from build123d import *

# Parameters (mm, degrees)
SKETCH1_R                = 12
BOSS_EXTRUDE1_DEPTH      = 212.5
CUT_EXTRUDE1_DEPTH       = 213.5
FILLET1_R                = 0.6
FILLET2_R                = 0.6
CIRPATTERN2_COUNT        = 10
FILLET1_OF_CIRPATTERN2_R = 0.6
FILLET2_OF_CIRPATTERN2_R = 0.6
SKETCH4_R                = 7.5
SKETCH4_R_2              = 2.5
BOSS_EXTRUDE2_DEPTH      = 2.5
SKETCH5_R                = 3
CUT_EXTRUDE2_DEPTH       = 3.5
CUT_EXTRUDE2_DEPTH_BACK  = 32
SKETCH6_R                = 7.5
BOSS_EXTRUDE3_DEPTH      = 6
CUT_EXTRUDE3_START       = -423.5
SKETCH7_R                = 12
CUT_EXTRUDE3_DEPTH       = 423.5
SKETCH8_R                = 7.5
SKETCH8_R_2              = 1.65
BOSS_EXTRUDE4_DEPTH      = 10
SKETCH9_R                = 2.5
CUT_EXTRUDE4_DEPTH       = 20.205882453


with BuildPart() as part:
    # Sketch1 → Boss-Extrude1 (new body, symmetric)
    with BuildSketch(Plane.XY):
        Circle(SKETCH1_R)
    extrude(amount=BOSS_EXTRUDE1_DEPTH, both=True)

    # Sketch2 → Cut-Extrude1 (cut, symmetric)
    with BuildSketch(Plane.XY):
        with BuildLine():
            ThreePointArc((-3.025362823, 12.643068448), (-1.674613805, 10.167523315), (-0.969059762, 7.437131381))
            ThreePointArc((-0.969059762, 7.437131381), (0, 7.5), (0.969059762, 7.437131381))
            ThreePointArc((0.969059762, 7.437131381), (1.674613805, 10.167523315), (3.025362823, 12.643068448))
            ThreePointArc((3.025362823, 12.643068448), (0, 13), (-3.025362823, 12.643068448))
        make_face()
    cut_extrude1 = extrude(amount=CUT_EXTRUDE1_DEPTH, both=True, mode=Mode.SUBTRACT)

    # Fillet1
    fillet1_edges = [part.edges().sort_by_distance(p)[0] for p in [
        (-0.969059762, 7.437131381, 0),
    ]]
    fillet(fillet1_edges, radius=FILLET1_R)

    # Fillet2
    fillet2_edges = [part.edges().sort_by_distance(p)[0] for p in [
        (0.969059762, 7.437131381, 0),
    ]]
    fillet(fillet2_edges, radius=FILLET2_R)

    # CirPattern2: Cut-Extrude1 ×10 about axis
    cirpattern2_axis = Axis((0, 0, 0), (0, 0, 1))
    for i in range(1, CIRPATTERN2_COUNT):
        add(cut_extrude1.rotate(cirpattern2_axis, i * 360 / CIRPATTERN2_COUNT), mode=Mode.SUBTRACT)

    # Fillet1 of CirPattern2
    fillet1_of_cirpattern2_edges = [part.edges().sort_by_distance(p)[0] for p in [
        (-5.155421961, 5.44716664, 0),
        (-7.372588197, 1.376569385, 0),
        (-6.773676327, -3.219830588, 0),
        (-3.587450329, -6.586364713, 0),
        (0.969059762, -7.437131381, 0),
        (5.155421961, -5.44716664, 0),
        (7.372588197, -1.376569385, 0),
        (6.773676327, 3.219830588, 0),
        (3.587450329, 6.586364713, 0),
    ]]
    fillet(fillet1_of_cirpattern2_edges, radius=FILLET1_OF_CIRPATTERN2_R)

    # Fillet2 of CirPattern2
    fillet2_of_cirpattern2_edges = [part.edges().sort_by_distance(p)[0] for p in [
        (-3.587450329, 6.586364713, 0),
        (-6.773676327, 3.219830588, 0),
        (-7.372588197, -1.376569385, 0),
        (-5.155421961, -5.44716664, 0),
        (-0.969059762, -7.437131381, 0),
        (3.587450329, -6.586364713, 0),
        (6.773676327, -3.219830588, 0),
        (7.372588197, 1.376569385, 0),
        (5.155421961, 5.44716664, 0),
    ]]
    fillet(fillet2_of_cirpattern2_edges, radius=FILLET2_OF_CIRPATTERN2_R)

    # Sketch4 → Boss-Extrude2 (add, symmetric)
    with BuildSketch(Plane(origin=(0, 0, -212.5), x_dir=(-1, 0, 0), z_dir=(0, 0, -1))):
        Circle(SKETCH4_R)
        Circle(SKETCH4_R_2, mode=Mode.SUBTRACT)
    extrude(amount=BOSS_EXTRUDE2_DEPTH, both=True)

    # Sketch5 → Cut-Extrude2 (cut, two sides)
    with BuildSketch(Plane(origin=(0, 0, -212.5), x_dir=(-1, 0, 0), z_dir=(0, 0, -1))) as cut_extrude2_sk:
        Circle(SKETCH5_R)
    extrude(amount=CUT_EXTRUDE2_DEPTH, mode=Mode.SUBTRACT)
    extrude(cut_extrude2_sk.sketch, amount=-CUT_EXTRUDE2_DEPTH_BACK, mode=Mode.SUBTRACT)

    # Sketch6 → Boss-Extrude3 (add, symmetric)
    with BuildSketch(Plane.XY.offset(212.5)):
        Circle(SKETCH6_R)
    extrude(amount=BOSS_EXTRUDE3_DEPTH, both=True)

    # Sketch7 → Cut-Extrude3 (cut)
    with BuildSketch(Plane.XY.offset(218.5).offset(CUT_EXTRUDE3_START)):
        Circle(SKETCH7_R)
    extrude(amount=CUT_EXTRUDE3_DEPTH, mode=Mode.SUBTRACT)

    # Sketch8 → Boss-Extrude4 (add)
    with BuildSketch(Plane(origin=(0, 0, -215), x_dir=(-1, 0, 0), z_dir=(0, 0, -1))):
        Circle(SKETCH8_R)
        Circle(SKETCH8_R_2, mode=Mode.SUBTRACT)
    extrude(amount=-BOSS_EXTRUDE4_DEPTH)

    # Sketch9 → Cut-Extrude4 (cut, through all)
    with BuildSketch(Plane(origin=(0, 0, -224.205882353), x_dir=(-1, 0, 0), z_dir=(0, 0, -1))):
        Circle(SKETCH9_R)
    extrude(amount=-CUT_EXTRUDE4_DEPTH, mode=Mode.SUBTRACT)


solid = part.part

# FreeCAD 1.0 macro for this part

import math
import FreeCAD as App
import Part
import Sketcher
from FreeCAD import Vector
Q = App.Units.Quantity


def edges_at(feature, points):
    """Names of the edges that pass closest to the given points."""
    edges = feature.Shape.Edges
    near = lambda p: min(range(len(edges)), key=lambda i: edges[i].distToShape(Part.Vertex(*p))[0])
    return sorted({f"Edge{near(p) + 1}" for p in points})

doc = App.newDocument("Part")
body = doc.addObject("PartDesign::Body", "Body")

# Sketch on XY plane
sketch1 = body.newObject("Sketcher::SketchObject", "Sketch")
sketch1.AttachmentSupport = (doc.getObject("XY_Plane"), [""])
sketch1.MapMode = "FlatFace"
sketch1.addGeometry(Part.Circle(Vector(0, 0, 0), Vector(0, 0, 1), 12), False)
sketch1.addConstraint([
    Sketcher.Constraint("Coincident", 0, 3, -1, 1),
    Sketcher.Constraint("Diameter", 0, Q("24 mm")),
])
pad1 = body.newObject("PartDesign::Pad", "Pad")
pad1.Profile = sketch1
pad1.Length = 425
pad1.Midplane = True

# Sketch on XY plane
sketch2 = body.newObject("Sketcher::SketchObject", "Sketch001")
sketch2.AttachmentSupport = (doc.getObject("XY_Plane"), [""])
sketch2.MapMode = "FlatFace"
sketch2.addGeometry([
    Part.ArcOfCircle(Part.Circle(Vector(-12.337304, 5.955847, 0), Vector(0, 0, 1), 11.464344), math.radians(7.423826), math.radians(35.683412)),
    Part.ArcOfCircle(Part.Circle(Vector(0, 0, 0), Vector(0, 0, 1), 7.5), math.radians(82.576174), math.radians(97.423826)),
    Part.ArcOfCircle(Part.Circle(Vector(12.337304, 5.955847, 0), Vector(0, 0, 1), 11.464344), math.radians(144.316588), math.radians(172.576174)),
    Part.ArcOfCircle(Part.Circle(Vector(0, 0, 0), Vector(0, 0, 1), 13), math.radians(76.542725), math.radians(103.457275)),
], False)
sketch2.addConstraint([
    Sketcher.Constraint("Coincident", 0, 1, 1, 2),
    Sketcher.Constraint("Coincident", 1, 1, 2, 2),
    Sketcher.Constraint("Coincident", 2, 1, 3, 1),
    Sketcher.Constraint("Coincident", 3, 2, 0, 2),
    Sketcher.Constraint("Coincident", 1, 3, -1, 1),
    Sketcher.Constraint("Coincident", 3, 3, -1, 1),
    Sketcher.Constraint("Equal", 0, 2),
    Sketcher.Constraint("Symmetric", 0, 3, 2, 3, -2),
    Sketcher.Constraint("Radius", 3, Q("13 mm")),
    Sketcher.Constraint("Radius", 1, Q("7.5 mm")),
    Sketcher.Constraint("Radius", 0, Q("11.464344 mm")),
    Sketcher.Constraint("DistanceX", 0, 1, -1, 1, Q("0.96906 mm")),
    Sketcher.Constraint("DistanceY", -1, 1, 2, 1, Q("12.643068 mm")),
])
pocket1 = body.newObject("PartDesign::Pocket", "Pocket")
pocket1.Profile = sketch2
pocket1.Length = 427
pocket1.Midplane = True
doc.recompute()

fillet = body.newObject("PartDesign::Fillet", "Fillet")
fillet.Base = (pocket1, edges_at(pocket1, [(-0.969, 7.437, 0)]))
fillet.Radius = 0.6
doc.recompute()

fillet2 = body.newObject("PartDesign::Fillet", "Fillet001")
fillet2.Base = (fillet, edges_at(fillet, [(0.969, 7.437, 0)]))
fillet2.Radius = 0.6
doc.recompute()

polarpattern = body.newObject("PartDesign::PolarPattern", "PolarPattern")
polarpattern.Originals = [pocket1]
polarpattern.Axis = (doc.getObject("Z_Axis"), [""])
polarpattern.Angle = 360
polarpattern.Occurrences = 10
body.Tip = polarpattern
doc.recompute()

fillet3 = body.newObject("PartDesign::Fillet", "Fillet002")
fillet3.Base = (polarpattern, edges_at(polarpattern, [
    (-5.155, 5.447, 0),
    (-7.373, 1.377, 0),
    (-6.774, -3.22, 0),
    (-3.587, -6.586, 0),
    (0.969, -7.437, 0),
    (5.155, -5.447, 0),
    (7.373, -1.377, 0),
    (6.774, 3.22, 0),
    (3.587, 6.586, 0),
]))
fillet3.Radius = 0.6
doc.recompute()

fillet4 = body.newObject("PartDesign::Fillet", "Fillet003")
fillet4.Base = (fillet3, edges_at(fillet3, [
    (-3.587, 6.586, 0),
    (-6.774, 3.22, 0),
    (-7.373, -1.377, 0),
    (-5.155, -5.447, 0),
    (-0.969, -7.437, 0),
    (3.587, -6.586, 0),
    (6.774, -3.22, 0),
    (7.373, 1.377, 0),
    (5.155, 5.447, 0),
]))
fillet4.Radius = 0.6

# Sketch on XY plane
sketch3 = body.newObject("Sketcher::SketchObject", "Sketch002")
sketch3.AttachmentSupport = (doc.getObject("XY_Plane"), [""])
sketch3.MapMode = "FlatFace"
sketch3.AttachmentOffset = App.Placement(Vector(0, 0, -212.5), App.Rotation())
sketch3.addGeometry([
    Part.Circle(Vector(0, 0, 0), Vector(0, 0, 1), 7.5),
    Part.Circle(Vector(0, 0, 0), Vector(0, 0, 1), 2.5),
], False)
sketch3.addConstraint([
    Sketcher.Constraint("Coincident", 0, 3, -1, 1),
    Sketcher.Constraint("Coincident", 1, 3, -1, 1),
    Sketcher.Constraint("Diameter", 0, Q("15 mm")),
    Sketcher.Constraint("Diameter", 1, Q("5 mm")),
])
pad2 = body.newObject("PartDesign::Pad", "Pad001")
pad2.Profile = sketch3
pad2.Length = 5
pad2.Midplane = True

# Sketch on XY plane
sketch4 = body.newObject("Sketcher::SketchObject", "Sketch003")
sketch4.AttachmentSupport = (doc.getObject("XY_Plane"), [""])
sketch4.MapMode = "FlatFace"
sketch4.AttachmentOffset = App.Placement(Vector(0, 0, -212.5), App.Rotation())
sketch4.addGeometry(Part.Circle(Vector(0, 0, 0), Vector(0, 0, 1), 3), False)
sketch4.addConstraint([
    Sketcher.Constraint("Coincident", 0, 3, -1, 1),
    Sketcher.Constraint("Diameter", 0, Q("6 mm")),
])
pocket2 = body.newObject("PartDesign::Pocket", "Pocket001")
pocket2.Profile = sketch4
pocket2.Type = "TwoLengths"
pocket2.Length = 3.5
pocket2.Length2 = 32

# Sketch on XY plane
sketch5 = body.newObject("Sketcher::SketchObject", "Sketch004")
sketch5.AttachmentSupport = (doc.getObject("XY_Plane"), [""])
sketch5.MapMode = "FlatFace"
sketch5.AttachmentOffset = App.Placement(Vector(0, 0, 212.5), App.Rotation())
sketch5.addGeometry(Part.Circle(Vector(0, 0, 0), Vector(0, 0, 1), 7.5), False)
sketch5.addConstraint([
    Sketcher.Constraint("Coincident", 0, 3, -1, 1),
    Sketcher.Constraint("Diameter", 0, Q("15 mm")),
])
pad3 = body.newObject("PartDesign::Pad", "Pad002")
pad3.Profile = sketch5
pad3.Length = 12
pad3.Midplane = True

# Sketch on XY plane
sketch6 = body.newObject("Sketcher::SketchObject", "Sketch005")
sketch6.AttachmentSupport = (doc.getObject("XY_Plane"), [""])
sketch6.MapMode = "FlatFace"
sketch6.AttachmentOffset = App.Placement(Vector(0, 0, -205), App.Rotation())
sketch6.addGeometry(Part.Circle(Vector(0, 0, 0), Vector(0, 0, 1), 12), False)
sketch6.addConstraint([
    Sketcher.Constraint("Coincident", 0, 3, -1, 1),
    Sketcher.Constraint("Diameter", 0, Q("24 mm")),
])
pocket3 = body.newObject("PartDesign::Pocket", "Pocket002")
pocket3.Profile = sketch6
pocket3.Length = 423.5
pocket3.Reversed = True

# Sketch on XY plane
sketch7 = body.newObject("Sketcher::SketchObject", "Sketch006")
sketch7.AttachmentSupport = (doc.getObject("XY_Plane"), [""])
sketch7.MapMode = "FlatFace"
sketch7.AttachmentOffset = App.Placement(Vector(0, 0, -215), App.Rotation())
sketch7.addGeometry([
    Part.Circle(Vector(0, 0, 0), Vector(0, 0, 1), 7.5),
    Part.Circle(Vector(0, 0, 0), Vector(0, 0, 1), 1.65),
], False)
sketch7.addConstraint([
    Sketcher.Constraint("Coincident", 0, 3, -1, 1),
    Sketcher.Constraint("Coincident", 1, 3, -1, 1),
    Sketcher.Constraint("Diameter", 0, Q("15 mm")),
    Sketcher.Constraint("Diameter", 1, Q("3.3 mm")),
])
pad4 = body.newObject("PartDesign::Pad", "Pad003")
pad4.Profile = sketch7
pad4.Length = 10

# Sketch on XY plane
sketch8 = body.newObject("Sketcher::SketchObject", "Sketch007")
sketch8.AttachmentSupport = (doc.getObject("XY_Plane"), [""])
sketch8.MapMode = "FlatFace"
sketch8.AttachmentOffset = App.Placement(Vector(0, 0, -224.205882), App.Rotation())
sketch8.addGeometry(Part.Circle(Vector(0, 0, 0), Vector(0, 0, 1), 2.5), False)
sketch8.addConstraint([
    Sketcher.Constraint("Coincident", 0, 3, -1, 1),
    Sketcher.Constraint("Diameter", 0, Q("5 mm")),
])
pocket4 = body.newObject("PartDesign::Pocket", "Pocket003")
pocket4.Profile = sketch8
pocket4.Type = "ThroughAll"
pocket4.Reversed = True

doc.recompute()
